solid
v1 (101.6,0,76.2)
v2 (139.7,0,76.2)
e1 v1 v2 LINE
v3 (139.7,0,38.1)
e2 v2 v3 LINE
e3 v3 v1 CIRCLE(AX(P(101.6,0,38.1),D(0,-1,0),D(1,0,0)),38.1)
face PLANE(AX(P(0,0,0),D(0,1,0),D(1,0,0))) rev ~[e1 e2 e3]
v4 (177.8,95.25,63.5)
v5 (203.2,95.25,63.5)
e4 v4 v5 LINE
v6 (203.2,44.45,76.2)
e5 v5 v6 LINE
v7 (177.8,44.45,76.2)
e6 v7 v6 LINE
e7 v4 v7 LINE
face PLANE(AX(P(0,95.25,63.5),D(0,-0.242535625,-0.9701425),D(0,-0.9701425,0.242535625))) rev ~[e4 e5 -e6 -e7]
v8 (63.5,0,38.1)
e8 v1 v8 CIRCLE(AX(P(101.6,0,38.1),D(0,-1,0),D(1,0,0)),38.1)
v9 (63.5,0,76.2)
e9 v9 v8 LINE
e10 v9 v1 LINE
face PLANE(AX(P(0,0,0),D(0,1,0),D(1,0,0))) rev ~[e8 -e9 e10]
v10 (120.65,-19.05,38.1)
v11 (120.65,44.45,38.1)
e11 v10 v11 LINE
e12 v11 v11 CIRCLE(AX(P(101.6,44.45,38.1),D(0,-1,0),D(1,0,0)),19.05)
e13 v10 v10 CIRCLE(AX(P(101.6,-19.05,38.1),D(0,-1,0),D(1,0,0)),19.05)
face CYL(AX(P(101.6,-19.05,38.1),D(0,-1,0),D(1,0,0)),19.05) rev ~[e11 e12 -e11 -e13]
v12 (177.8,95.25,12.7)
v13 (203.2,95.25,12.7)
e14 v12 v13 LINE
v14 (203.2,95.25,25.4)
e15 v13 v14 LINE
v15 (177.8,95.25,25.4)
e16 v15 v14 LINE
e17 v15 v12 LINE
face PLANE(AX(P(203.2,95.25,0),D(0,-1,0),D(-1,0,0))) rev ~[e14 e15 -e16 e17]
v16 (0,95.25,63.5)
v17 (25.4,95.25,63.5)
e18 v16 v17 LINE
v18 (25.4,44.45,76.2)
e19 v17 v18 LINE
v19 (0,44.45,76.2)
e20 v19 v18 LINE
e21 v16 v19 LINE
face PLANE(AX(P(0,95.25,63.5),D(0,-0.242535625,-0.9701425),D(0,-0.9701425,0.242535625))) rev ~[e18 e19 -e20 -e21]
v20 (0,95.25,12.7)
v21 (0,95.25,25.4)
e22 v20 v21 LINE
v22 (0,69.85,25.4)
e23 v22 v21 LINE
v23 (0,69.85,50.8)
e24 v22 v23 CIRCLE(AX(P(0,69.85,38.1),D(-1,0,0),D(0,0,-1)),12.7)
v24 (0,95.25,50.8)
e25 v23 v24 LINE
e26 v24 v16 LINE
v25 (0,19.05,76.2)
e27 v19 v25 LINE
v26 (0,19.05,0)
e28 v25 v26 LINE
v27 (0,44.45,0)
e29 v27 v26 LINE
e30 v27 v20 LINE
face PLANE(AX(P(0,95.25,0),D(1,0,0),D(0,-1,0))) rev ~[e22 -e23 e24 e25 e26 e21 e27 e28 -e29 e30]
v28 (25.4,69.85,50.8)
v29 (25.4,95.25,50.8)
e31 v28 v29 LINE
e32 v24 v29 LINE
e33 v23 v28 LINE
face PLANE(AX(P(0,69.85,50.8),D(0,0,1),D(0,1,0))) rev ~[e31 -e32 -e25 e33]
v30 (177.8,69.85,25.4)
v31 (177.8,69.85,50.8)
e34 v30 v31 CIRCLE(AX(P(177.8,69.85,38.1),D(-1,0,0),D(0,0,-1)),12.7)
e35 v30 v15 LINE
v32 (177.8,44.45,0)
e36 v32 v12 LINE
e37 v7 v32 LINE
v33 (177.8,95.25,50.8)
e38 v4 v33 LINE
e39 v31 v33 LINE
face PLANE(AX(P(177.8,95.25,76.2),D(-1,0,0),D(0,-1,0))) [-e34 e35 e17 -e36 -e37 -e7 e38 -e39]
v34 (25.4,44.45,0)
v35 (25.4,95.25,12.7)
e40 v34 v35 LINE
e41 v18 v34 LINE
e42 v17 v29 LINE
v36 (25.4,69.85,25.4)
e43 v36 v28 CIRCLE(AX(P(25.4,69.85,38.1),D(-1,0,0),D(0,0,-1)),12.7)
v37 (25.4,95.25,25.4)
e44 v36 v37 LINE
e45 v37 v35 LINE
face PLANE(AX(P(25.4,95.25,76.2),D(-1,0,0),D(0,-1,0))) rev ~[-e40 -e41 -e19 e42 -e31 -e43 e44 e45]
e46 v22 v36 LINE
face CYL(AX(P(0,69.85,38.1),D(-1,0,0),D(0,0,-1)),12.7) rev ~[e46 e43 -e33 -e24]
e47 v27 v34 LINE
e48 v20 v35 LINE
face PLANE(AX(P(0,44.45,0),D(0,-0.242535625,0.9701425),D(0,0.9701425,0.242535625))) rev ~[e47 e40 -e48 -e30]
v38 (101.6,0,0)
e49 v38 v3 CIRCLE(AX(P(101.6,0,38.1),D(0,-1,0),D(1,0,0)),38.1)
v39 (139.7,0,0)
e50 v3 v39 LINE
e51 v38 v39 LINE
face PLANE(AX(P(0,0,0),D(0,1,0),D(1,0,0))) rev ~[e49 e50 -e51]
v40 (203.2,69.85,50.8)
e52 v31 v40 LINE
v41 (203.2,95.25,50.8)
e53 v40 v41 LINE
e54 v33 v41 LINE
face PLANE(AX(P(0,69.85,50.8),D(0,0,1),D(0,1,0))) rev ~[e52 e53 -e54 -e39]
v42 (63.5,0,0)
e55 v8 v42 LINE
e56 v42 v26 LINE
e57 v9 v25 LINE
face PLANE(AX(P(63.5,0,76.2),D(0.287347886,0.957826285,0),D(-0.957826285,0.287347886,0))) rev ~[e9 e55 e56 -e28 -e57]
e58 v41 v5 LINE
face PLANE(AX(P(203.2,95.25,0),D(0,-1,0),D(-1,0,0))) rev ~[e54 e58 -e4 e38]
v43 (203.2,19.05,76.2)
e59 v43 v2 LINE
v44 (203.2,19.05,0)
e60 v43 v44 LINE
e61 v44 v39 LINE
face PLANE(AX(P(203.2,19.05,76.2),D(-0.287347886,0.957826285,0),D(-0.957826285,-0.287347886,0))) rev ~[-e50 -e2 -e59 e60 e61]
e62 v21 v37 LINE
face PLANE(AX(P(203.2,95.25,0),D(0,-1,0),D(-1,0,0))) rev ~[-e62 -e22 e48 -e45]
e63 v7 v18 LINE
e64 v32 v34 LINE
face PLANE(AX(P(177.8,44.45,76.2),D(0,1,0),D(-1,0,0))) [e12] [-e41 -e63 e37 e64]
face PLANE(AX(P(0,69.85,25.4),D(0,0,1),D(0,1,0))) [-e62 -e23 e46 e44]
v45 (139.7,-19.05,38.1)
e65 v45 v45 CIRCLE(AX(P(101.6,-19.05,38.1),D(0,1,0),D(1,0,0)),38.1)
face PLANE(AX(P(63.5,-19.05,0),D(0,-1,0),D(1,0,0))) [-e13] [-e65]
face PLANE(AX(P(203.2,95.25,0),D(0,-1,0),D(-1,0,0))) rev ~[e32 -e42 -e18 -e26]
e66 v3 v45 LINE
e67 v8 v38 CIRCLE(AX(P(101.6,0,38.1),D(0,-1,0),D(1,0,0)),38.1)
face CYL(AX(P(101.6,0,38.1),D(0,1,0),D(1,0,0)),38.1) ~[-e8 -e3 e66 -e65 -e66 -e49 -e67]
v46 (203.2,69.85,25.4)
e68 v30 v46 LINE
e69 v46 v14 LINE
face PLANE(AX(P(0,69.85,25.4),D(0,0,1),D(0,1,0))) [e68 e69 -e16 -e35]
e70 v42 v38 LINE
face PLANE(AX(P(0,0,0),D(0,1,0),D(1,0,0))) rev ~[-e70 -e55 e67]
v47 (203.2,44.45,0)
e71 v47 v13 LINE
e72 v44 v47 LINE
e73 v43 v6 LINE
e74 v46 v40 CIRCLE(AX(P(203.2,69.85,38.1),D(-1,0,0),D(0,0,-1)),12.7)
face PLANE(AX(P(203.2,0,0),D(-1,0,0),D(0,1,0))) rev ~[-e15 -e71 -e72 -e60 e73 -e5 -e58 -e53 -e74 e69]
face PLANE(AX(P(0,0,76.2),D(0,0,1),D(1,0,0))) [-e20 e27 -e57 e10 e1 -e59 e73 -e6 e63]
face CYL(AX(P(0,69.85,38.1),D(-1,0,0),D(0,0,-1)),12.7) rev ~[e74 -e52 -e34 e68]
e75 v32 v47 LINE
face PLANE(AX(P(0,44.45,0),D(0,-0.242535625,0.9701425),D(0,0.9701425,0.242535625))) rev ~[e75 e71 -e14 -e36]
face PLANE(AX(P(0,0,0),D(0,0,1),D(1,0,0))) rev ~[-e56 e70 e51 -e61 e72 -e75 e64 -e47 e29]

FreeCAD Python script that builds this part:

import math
import FreeCAD as App
import Part
import Sketcher
Q = App.Units.Quantity

doc = App.newDocument("Part")
body = doc.addObject("PartDesign::Body", "Body")

# Sketch on XY plane
sketch1 = body.newObject("Sketcher::SketchObject", "Sketch")
sketch1.AttachmentSupport = (doc.getObject("XY_Plane"), [""])
sketch1.MapMode = "FlatFace"
sketch1.addGeometry(Part.LineSegment(App.Vector(0, 95.25, 0), App.Vector(0, 0, 0)), False)
sketch1.addGeometry(Part.LineSegment(App.Vector(0, 0, 0), App.Vector(203.2, 0, 0)), False)
sketch1.addGeometry(Part.LineSegment(App.Vector(203.2, 0, 0), App.Vector(203.2, 95.25, 0)), False)
sketch1.addGeometry(Part.LineSegment(App.Vector(203.2, 95.25, 0), App.Vector(0, 95.25, 0)), False)
sketch1.addConstraint(Sketcher.Constraint("Coincident", 0, 2, 1, 1))
sketch1.addConstraint(Sketcher.Constraint("Coincident", 1, 2, 2, 1))
sketch1.addConstraint(Sketcher.Constraint("Coincident", 2, 2, 3, 1))
sketch1.addConstraint(Sketcher.Constraint("Coincident", 3, 2, 0, 1))
sketch1.addConstraint(Sketcher.Constraint("Vertical", 0))
sketch1.addConstraint(Sketcher.Constraint("Horizontal", 1))
sketch1.addConstraint(Sketcher.Constraint("Vertical", 2))
sketch1.addConstraint(Sketcher.Constraint("Horizontal", 3))
sketch1.addConstraint(Sketcher.Constraint("Coincident", 0, 2, -1, 1))
sketch1.addConstraint(Sketcher.Constraint("DistanceX", 1, 1, 1, 2, Q("8 in")))
sketch1.addConstraint(Sketcher.Constraint("DistanceY", 0, 2, 0, 1, Q("3.75 in")))
pad1 = body.newObject("PartDesign::Pad", "Pad")
pad1.Profile = sketch1
pad1.Length = Q("3 in")

# Sketch on XY plane
sketch2 = body.newObject("Sketcher::SketchObject", "Sketch001")
sketch2.AttachmentSupport = (doc.getObject("XY_Plane"), [""])
sketch2.MapMode = "FlatFace"
sketch2.AttachmentOffset = App.Placement(App.Vector(0, 0, 3 * 25.4), App.Rotation())
sketch2.addGeometry(Part.LineSegment(App.Vector(63.5, 0, 0), App.Vector(0, 19.05, 0)), False)
sketch2.addGeometry(Part.LineSegment(App.Vector(0, 19.05, 0), App.Vector(0, 0, 0)), False)
sketch2.addGeometry(Part.LineSegment(App.Vector(0, 0, 0), App.Vector(63.5, 0, 0)), False)
sketch2.addGeometry(Part.LineSegment(App.Vector(203.2, 19.05, 0), App.Vector(139.7, 0, 0)), False)
sketch2.addGeometry(Part.LineSegment(App.Vector(139.7, 0, 0), App.Vector(203.2, 0, 0)), False)
sketch2.addGeometry(Part.LineSegment(App.Vector(203.2, 0, 0), App.Vector(203.2, 19.05, 0)), False)
sketch2.addConstraint(Sketcher.Constraint("Coincident", 0, 2, 1, 1))
sketch2.addConstraint(Sketcher.Constraint("Coincident", 1, 2, 2, 1))
sketch2.addConstraint(Sketcher.Constraint("Coincident", 2, 2, 0, 1))
sketch2.addConstraint(Sketcher.Constraint("Coincident", 3, 2, 4, 1))
sketch2.addConstraint(Sketcher.Constraint("Coincident", 4, 2, 5, 1))
sketch2.addConstraint(Sketcher.Constraint("Coincident", 5, 2, 3, 1))
sketch2.addConstraint(Sketcher.Constraint("Vertical", 1))
sketch2.addConstraint(Sketcher.Constraint("Horizontal", 2))
sketch2.addConstraint(Sketcher.Constraint("Horizontal", 4))
sketch2.addConstraint(Sketcher.Constraint("Vertical", 5))
sketch2.addConstraint(Sketcher.Constraint("Coincident", 1, 2, -1, 1))
sketch2.addConstraint(Sketcher.Constraint("PointOnObject", 3, 2, -1))
sketch2.addConstraint(Sketcher.Constraint("Horizontal", 0, 2, 5, 2))
sketch2.addConstraint(Sketcher.Constraint("Equal", 2, 4))
sketch2.addConstraint(Sketcher.Constraint("DistanceX", 2, 2, 3, 2, Q("3 in")))
sketch2.addConstraint(Sketcher.Constraint("DistanceX", 2, 1, 2, 2, Q("2.5 in")))
sketch2.addConstraint(Sketcher.Constraint("DistanceY", 1, 2, 1, 1, Q("0.75 in")))
pocket1 = body.newObject("PartDesign::Pocket", "Pocket")
pocket1.Profile = sketch2
pocket1.Length = Q("3 in")

# Sketch on XY plane
sketch3 = body.newObject("Sketcher::SketchObject", "Sketch002")
sketch3.AttachmentSupport = (doc.getObject("XY_Plane"), [""])
sketch3.MapMode = "FlatFace"
sketch3.AttachmentOffset = App.Placement(App.Vector(0, 0, 3 * 25.4), App.Rotation())
sketch3.addGeometry(Part.LineSegment(App.Vector(177.8, 44.45, 0), App.Vector(177.8, 95.25, 0)), False)
sketch3.addGeometry(Part.LineSegment(App.Vector(177.8, 95.25, 0), App.Vector(25.4, 95.25, 0)), False)
sketch3.addGeometry(Part.LineSegment(App.Vector(25.4, 95.25, 0), App.Vector(25.4, 44.45, 0)), False)
sketch3.addGeometry(Part.LineSegment(App.Vector(25.4, 44.45, 0), App.Vector(177.8, 44.45, 0)), False)
sketch3.addConstraint(Sketcher.Constraint("Coincident", 0, 2, 1, 1))
sketch3.addConstraint(Sketcher.Constraint("Coincident", 1, 2, 2, 1))
sketch3.addConstraint(Sketcher.Constraint("Coincident", 2, 2, 3, 1))
sketch3.addConstraint(Sketcher.Constraint("Coincident", 3, 2, 0, 1))
sketch3.addConstraint(Sketcher.Constraint("Vertical", 0))
sketch3.addConstraint(Sketcher.Constraint("Horizontal", 1))
sketch3.addConstraint(Sketcher.Constraint("Vertical", 2))
sketch3.addConstraint(Sketcher.Constraint("Horizontal", 3))
sketch3.addConstraint(Sketcher.Constraint("DistanceX", -1, 1, 1, 2, Q("1 in")))
sketch3.addConstraint(Sketcher.Constraint("DistanceX", 1, 2, 1, 1, Q("6 in")))
sketch3.addConstraint(Sketcher.Constraint("DistanceY", 0, 1, 0, 2, Q("2 in")))
sketch3.addConstraint(Sketcher.Constraint("DistanceY", -1, 1, 0, 2, Q("3.75 in")))
pocket2 = body.newObject("PartDesign::Pocket", "Pocket001")
pocket2.Profile = sketch3
pocket2.Length = Q("3 in")

# Sketch on YZ plane
sketch4 = body.newObject("Sketcher::SketchObject", "Sketch003")
sketch4.AttachmentSupport = (doc.getObject("YZ_Plane"), [""])
sketch4.MapMode = "FlatFace"
sketch4.addGeometry(Part.LineSegment(App.Vector(44.45, 76.2, 0), App.Vector(95.25, 76.2, 0)), False)
sketch4.addGeometry(Part.LineSegment(App.Vector(95.25, 76.2, 0), App.Vector(95.25, 63.5, 0)), False)
sketch4.addGeometry(Part.LineSegment(App.Vector(95.25, 63.5, 0), App.Vector(44.45, 76.2, 0)), False)
sketch4.addGeometry(Part.LineSegment(App.Vector(95.25, 12.7, 0), App.Vector(95.25, 0, 0)), False)
sketch4.addGeometry(Part.LineSegment(App.Vector(95.25, 0, 0), App.Vector(44.45, 0, 0)), False)
sketch4.addGeometry(Part.LineSegment(App.Vector(44.45, 0, 0), App.Vector(95.25, 12.7, 0)), False)
sketch4.addConstraint(Sketcher.Constraint("Coincident", 0, 2, 1, 1))
sketch4.addConstraint(Sketcher.Constraint("Coincident", 1, 2, 2, 1))
sketch4.addConstraint(Sketcher.Constraint("Coincident", 2, 2, 0, 1))
sketch4.addConstraint(Sketcher.Constraint("Coincident", 3, 2, 4, 1))
sketch4.addConstraint(Sketcher.Constraint("Coincident", 4, 2, 5, 1))
sketch4.addConstraint(Sketcher.Constraint("Coincident", 5, 2, 3, 1))
sketch4.addConstraint(Sketcher.Constraint("Horizontal", 0))
sketch4.addConstraint(Sketcher.Constraint("Vertical", 1))
sketch4.addConstraint(Sketcher.Constraint("Vertical", 3))
sketch4.addConstraint(Sketcher.Constraint("Horizontal", 4))
sketch4.addConstraint(Sketcher.Constraint("PointOnObject", 3, 2, -1))
sketch4.addConstraint(Sketcher.Constraint("Vertical", 1, 2, 3, 2))
sketch4.addConstraint(Sketcher.Constraint("Vertical", 2, 2, 4, 2))
sketch4.addConstraint(Sketcher.Constraint("Equal", 1, 3))
sketch4.addConstraint(Sketcher.Constraint("DistanceX", 0, 1, 0, 2, Q("2 in")))
sketch4.addConstraint(Sketcher.Constraint("DistanceY", 1, 2, 1, 1, Q("0.5 in")))
sketch4.addConstraint(Sketcher.Constraint("DistanceY", 5, 2, 1, 2, Q("2 in")))
sketch4.addConstraint(Sketcher.Constraint("DistanceX", -1, 1, 0, 2, Q("3.75 in")))
pocket3 = body.newObject("PartDesign::Pocket", "Pocket002")
pocket3.Profile = sketch4
pocket3.Type = "ThroughAll"
pocket3.Reversed = True

# Sketch on YZ plane
sketch5 = body.newObject("Sketcher::SketchObject", "Sketch004")
sketch5.AttachmentSupport = (doc.getObject("YZ_Plane"), [""])
sketch5.MapMode = "FlatFace"
sketch5.addGeometry(Part.LineSegment(App.Vector(69.85, 50.8, 0), App.Vector(95.25, 50.8, 0)), False)
sketch5.addGeometry(Part.LineSegment(App.Vector(95.25, 50.8, 0), App.Vector(95.25, 25.4, 0)), False)
sketch5.addGeometry(Part.LineSegment(App.Vector(95.25, 25.4, 0), App.Vector(69.85, 25.4, 0)), False)
sketch5.addGeometry(Part.ArcOfCircle(Part.Circle(App.Vector(69.85, 38.1, 0), App.Vector(0, 0, 1), 12.7), math.radians(90), math.radians(270)), False)
sketch5.addConstraint(Sketcher.Constraint("Coincident", 0, 2, 1, 1))
sketch5.addConstraint(Sketcher.Constraint("Coincident", 1, 2, 2, 1))
sketch5.addConstraint(Sketcher.Constraint("Tangent", 2, 2, 3, 2))
sketch5.addConstraint(Sketcher.Constraint("Tangent", 3, 1, 0, 1))
sketch5.addConstraint(Sketcher.Constraint("Horizontal", 0))
sketch5.addConstraint(Sketcher.Constraint("Vertical", 1))
sketch5.addConstraint(Sketcher.Constraint("Horizontal", 2))
sketch5.addConstraint(Sketcher.Constraint("Equal", 2, 1))
sketch5.addConstraint(Sketcher.Constraint("Radius", 3, Q("0.5 in")))
sketch5.addConstraint(Sketcher.Constraint("DistanceY", -1, 1, 1, 2, Q("1 in")))
sketch5.addConstraint(Sketcher.Constraint("DistanceX", -1, 1, 3, 3, Q("2.75 in")))
pocket4 = body.newObject("PartDesign::Pocket", "Pocket003")
pocket4.Profile = sketch5
pocket4.Type = "ThroughAll"
pocket4.Reversed = True

# Sketch on XZ plane
sketch6 = body.newObject("Sketcher::SketchObject", "Sketch005")
sketch6.AttachmentSupport = (doc.getObject("XZ_Plane"), [""])
sketch6.MapMode = "FlatFace"
sketch6.addGeometry(Part.Circle(App.Vector(101.6, 38.1, 0), App.Vector(0, 0, 1), 38.1), False)
sketch6.addConstraint(Sketcher.Constraint("Diameter", 0, Q("3 in")))
sketch6.addConstraint(Sketcher.Constraint("DistanceX", -1, 1, 0, 3, Q("4 in")))
sketch6.addConstraint(Sketcher.Constraint("DistanceY", -1, 1, 0, 3, Q("1.5 in")))
pad2 = body.newObject("PartDesign::Pad", "Pad001")
pad2.Profile = sketch6
pad2.Length = Q("0.75 in")

# Sketch on XZ plane
sketch7 = body.newObject("Sketcher::SketchObject", "Sketch006")
sketch7.AttachmentSupport = (doc.getObject("XZ_Plane"), [""])
sketch7.MapMode = "FlatFace"
sketch7.AttachmentOffset = App.Placement(App.Vector(0, 0, -1.75 * 25.4), App.Rotation())
sketch7.addGeometry(Part.Circle(App.Vector(101.6, 38.1, 0), App.Vector(0, 0, 1), 19.05), False)
sketch7.addConstraint(Sketcher.Constraint("Diameter", 0, Q("1.5 in")))
sketch7.addConstraint(Sketcher.Constraint("DistanceY", -1, 1, 0, 3, Q("1.5 in")))
sketch7.addConstraint(Sketcher.Constraint("DistanceX", -1, 1, 0, 3, Q("4 in")))
pocket5 = body.newObject("PartDesign::Pocket", "Pocket004")
pocket5.Profile = sketch7
pocket5.Length = Q("2.5 in")

# Sketch on XZ plane
sketch8 = body.newObject("Sketcher::SketchObject", "Sketch007")
sketch8.AttachmentSupport = (doc.getObject("XZ_Plane"), [""])
sketch8.MapMode = "FlatFace"
sketch8.AttachmentOffset = App.Placement(App.Vector(0, 0, 0.75 * 25.4), App.Rotation())
sketch8.addGeometry(Part.Circle(App.Vector(101.6, 38.1, 0), App.Vector(0, 0, 1), 19.05), False)
sketch8.addConstraint(Sketcher.Constraint("Diameter", 0, Q("1.5 in")))
sketch8.addConstraint(Sketcher.Constraint("DistanceY", -1, 1, 0, 3, Q("1.5 in")))
sketch8.addConstraint(Sketcher.Constraint("DistanceX", -1, 1, 0, 3, Q("4 in")))
pocket6 = body.newObject("PartDesign::Pocket", "Pocket005")
pocket6.Profile = sketch8
pocket6.Length = Q("2.5 in")

doc.recompute()
